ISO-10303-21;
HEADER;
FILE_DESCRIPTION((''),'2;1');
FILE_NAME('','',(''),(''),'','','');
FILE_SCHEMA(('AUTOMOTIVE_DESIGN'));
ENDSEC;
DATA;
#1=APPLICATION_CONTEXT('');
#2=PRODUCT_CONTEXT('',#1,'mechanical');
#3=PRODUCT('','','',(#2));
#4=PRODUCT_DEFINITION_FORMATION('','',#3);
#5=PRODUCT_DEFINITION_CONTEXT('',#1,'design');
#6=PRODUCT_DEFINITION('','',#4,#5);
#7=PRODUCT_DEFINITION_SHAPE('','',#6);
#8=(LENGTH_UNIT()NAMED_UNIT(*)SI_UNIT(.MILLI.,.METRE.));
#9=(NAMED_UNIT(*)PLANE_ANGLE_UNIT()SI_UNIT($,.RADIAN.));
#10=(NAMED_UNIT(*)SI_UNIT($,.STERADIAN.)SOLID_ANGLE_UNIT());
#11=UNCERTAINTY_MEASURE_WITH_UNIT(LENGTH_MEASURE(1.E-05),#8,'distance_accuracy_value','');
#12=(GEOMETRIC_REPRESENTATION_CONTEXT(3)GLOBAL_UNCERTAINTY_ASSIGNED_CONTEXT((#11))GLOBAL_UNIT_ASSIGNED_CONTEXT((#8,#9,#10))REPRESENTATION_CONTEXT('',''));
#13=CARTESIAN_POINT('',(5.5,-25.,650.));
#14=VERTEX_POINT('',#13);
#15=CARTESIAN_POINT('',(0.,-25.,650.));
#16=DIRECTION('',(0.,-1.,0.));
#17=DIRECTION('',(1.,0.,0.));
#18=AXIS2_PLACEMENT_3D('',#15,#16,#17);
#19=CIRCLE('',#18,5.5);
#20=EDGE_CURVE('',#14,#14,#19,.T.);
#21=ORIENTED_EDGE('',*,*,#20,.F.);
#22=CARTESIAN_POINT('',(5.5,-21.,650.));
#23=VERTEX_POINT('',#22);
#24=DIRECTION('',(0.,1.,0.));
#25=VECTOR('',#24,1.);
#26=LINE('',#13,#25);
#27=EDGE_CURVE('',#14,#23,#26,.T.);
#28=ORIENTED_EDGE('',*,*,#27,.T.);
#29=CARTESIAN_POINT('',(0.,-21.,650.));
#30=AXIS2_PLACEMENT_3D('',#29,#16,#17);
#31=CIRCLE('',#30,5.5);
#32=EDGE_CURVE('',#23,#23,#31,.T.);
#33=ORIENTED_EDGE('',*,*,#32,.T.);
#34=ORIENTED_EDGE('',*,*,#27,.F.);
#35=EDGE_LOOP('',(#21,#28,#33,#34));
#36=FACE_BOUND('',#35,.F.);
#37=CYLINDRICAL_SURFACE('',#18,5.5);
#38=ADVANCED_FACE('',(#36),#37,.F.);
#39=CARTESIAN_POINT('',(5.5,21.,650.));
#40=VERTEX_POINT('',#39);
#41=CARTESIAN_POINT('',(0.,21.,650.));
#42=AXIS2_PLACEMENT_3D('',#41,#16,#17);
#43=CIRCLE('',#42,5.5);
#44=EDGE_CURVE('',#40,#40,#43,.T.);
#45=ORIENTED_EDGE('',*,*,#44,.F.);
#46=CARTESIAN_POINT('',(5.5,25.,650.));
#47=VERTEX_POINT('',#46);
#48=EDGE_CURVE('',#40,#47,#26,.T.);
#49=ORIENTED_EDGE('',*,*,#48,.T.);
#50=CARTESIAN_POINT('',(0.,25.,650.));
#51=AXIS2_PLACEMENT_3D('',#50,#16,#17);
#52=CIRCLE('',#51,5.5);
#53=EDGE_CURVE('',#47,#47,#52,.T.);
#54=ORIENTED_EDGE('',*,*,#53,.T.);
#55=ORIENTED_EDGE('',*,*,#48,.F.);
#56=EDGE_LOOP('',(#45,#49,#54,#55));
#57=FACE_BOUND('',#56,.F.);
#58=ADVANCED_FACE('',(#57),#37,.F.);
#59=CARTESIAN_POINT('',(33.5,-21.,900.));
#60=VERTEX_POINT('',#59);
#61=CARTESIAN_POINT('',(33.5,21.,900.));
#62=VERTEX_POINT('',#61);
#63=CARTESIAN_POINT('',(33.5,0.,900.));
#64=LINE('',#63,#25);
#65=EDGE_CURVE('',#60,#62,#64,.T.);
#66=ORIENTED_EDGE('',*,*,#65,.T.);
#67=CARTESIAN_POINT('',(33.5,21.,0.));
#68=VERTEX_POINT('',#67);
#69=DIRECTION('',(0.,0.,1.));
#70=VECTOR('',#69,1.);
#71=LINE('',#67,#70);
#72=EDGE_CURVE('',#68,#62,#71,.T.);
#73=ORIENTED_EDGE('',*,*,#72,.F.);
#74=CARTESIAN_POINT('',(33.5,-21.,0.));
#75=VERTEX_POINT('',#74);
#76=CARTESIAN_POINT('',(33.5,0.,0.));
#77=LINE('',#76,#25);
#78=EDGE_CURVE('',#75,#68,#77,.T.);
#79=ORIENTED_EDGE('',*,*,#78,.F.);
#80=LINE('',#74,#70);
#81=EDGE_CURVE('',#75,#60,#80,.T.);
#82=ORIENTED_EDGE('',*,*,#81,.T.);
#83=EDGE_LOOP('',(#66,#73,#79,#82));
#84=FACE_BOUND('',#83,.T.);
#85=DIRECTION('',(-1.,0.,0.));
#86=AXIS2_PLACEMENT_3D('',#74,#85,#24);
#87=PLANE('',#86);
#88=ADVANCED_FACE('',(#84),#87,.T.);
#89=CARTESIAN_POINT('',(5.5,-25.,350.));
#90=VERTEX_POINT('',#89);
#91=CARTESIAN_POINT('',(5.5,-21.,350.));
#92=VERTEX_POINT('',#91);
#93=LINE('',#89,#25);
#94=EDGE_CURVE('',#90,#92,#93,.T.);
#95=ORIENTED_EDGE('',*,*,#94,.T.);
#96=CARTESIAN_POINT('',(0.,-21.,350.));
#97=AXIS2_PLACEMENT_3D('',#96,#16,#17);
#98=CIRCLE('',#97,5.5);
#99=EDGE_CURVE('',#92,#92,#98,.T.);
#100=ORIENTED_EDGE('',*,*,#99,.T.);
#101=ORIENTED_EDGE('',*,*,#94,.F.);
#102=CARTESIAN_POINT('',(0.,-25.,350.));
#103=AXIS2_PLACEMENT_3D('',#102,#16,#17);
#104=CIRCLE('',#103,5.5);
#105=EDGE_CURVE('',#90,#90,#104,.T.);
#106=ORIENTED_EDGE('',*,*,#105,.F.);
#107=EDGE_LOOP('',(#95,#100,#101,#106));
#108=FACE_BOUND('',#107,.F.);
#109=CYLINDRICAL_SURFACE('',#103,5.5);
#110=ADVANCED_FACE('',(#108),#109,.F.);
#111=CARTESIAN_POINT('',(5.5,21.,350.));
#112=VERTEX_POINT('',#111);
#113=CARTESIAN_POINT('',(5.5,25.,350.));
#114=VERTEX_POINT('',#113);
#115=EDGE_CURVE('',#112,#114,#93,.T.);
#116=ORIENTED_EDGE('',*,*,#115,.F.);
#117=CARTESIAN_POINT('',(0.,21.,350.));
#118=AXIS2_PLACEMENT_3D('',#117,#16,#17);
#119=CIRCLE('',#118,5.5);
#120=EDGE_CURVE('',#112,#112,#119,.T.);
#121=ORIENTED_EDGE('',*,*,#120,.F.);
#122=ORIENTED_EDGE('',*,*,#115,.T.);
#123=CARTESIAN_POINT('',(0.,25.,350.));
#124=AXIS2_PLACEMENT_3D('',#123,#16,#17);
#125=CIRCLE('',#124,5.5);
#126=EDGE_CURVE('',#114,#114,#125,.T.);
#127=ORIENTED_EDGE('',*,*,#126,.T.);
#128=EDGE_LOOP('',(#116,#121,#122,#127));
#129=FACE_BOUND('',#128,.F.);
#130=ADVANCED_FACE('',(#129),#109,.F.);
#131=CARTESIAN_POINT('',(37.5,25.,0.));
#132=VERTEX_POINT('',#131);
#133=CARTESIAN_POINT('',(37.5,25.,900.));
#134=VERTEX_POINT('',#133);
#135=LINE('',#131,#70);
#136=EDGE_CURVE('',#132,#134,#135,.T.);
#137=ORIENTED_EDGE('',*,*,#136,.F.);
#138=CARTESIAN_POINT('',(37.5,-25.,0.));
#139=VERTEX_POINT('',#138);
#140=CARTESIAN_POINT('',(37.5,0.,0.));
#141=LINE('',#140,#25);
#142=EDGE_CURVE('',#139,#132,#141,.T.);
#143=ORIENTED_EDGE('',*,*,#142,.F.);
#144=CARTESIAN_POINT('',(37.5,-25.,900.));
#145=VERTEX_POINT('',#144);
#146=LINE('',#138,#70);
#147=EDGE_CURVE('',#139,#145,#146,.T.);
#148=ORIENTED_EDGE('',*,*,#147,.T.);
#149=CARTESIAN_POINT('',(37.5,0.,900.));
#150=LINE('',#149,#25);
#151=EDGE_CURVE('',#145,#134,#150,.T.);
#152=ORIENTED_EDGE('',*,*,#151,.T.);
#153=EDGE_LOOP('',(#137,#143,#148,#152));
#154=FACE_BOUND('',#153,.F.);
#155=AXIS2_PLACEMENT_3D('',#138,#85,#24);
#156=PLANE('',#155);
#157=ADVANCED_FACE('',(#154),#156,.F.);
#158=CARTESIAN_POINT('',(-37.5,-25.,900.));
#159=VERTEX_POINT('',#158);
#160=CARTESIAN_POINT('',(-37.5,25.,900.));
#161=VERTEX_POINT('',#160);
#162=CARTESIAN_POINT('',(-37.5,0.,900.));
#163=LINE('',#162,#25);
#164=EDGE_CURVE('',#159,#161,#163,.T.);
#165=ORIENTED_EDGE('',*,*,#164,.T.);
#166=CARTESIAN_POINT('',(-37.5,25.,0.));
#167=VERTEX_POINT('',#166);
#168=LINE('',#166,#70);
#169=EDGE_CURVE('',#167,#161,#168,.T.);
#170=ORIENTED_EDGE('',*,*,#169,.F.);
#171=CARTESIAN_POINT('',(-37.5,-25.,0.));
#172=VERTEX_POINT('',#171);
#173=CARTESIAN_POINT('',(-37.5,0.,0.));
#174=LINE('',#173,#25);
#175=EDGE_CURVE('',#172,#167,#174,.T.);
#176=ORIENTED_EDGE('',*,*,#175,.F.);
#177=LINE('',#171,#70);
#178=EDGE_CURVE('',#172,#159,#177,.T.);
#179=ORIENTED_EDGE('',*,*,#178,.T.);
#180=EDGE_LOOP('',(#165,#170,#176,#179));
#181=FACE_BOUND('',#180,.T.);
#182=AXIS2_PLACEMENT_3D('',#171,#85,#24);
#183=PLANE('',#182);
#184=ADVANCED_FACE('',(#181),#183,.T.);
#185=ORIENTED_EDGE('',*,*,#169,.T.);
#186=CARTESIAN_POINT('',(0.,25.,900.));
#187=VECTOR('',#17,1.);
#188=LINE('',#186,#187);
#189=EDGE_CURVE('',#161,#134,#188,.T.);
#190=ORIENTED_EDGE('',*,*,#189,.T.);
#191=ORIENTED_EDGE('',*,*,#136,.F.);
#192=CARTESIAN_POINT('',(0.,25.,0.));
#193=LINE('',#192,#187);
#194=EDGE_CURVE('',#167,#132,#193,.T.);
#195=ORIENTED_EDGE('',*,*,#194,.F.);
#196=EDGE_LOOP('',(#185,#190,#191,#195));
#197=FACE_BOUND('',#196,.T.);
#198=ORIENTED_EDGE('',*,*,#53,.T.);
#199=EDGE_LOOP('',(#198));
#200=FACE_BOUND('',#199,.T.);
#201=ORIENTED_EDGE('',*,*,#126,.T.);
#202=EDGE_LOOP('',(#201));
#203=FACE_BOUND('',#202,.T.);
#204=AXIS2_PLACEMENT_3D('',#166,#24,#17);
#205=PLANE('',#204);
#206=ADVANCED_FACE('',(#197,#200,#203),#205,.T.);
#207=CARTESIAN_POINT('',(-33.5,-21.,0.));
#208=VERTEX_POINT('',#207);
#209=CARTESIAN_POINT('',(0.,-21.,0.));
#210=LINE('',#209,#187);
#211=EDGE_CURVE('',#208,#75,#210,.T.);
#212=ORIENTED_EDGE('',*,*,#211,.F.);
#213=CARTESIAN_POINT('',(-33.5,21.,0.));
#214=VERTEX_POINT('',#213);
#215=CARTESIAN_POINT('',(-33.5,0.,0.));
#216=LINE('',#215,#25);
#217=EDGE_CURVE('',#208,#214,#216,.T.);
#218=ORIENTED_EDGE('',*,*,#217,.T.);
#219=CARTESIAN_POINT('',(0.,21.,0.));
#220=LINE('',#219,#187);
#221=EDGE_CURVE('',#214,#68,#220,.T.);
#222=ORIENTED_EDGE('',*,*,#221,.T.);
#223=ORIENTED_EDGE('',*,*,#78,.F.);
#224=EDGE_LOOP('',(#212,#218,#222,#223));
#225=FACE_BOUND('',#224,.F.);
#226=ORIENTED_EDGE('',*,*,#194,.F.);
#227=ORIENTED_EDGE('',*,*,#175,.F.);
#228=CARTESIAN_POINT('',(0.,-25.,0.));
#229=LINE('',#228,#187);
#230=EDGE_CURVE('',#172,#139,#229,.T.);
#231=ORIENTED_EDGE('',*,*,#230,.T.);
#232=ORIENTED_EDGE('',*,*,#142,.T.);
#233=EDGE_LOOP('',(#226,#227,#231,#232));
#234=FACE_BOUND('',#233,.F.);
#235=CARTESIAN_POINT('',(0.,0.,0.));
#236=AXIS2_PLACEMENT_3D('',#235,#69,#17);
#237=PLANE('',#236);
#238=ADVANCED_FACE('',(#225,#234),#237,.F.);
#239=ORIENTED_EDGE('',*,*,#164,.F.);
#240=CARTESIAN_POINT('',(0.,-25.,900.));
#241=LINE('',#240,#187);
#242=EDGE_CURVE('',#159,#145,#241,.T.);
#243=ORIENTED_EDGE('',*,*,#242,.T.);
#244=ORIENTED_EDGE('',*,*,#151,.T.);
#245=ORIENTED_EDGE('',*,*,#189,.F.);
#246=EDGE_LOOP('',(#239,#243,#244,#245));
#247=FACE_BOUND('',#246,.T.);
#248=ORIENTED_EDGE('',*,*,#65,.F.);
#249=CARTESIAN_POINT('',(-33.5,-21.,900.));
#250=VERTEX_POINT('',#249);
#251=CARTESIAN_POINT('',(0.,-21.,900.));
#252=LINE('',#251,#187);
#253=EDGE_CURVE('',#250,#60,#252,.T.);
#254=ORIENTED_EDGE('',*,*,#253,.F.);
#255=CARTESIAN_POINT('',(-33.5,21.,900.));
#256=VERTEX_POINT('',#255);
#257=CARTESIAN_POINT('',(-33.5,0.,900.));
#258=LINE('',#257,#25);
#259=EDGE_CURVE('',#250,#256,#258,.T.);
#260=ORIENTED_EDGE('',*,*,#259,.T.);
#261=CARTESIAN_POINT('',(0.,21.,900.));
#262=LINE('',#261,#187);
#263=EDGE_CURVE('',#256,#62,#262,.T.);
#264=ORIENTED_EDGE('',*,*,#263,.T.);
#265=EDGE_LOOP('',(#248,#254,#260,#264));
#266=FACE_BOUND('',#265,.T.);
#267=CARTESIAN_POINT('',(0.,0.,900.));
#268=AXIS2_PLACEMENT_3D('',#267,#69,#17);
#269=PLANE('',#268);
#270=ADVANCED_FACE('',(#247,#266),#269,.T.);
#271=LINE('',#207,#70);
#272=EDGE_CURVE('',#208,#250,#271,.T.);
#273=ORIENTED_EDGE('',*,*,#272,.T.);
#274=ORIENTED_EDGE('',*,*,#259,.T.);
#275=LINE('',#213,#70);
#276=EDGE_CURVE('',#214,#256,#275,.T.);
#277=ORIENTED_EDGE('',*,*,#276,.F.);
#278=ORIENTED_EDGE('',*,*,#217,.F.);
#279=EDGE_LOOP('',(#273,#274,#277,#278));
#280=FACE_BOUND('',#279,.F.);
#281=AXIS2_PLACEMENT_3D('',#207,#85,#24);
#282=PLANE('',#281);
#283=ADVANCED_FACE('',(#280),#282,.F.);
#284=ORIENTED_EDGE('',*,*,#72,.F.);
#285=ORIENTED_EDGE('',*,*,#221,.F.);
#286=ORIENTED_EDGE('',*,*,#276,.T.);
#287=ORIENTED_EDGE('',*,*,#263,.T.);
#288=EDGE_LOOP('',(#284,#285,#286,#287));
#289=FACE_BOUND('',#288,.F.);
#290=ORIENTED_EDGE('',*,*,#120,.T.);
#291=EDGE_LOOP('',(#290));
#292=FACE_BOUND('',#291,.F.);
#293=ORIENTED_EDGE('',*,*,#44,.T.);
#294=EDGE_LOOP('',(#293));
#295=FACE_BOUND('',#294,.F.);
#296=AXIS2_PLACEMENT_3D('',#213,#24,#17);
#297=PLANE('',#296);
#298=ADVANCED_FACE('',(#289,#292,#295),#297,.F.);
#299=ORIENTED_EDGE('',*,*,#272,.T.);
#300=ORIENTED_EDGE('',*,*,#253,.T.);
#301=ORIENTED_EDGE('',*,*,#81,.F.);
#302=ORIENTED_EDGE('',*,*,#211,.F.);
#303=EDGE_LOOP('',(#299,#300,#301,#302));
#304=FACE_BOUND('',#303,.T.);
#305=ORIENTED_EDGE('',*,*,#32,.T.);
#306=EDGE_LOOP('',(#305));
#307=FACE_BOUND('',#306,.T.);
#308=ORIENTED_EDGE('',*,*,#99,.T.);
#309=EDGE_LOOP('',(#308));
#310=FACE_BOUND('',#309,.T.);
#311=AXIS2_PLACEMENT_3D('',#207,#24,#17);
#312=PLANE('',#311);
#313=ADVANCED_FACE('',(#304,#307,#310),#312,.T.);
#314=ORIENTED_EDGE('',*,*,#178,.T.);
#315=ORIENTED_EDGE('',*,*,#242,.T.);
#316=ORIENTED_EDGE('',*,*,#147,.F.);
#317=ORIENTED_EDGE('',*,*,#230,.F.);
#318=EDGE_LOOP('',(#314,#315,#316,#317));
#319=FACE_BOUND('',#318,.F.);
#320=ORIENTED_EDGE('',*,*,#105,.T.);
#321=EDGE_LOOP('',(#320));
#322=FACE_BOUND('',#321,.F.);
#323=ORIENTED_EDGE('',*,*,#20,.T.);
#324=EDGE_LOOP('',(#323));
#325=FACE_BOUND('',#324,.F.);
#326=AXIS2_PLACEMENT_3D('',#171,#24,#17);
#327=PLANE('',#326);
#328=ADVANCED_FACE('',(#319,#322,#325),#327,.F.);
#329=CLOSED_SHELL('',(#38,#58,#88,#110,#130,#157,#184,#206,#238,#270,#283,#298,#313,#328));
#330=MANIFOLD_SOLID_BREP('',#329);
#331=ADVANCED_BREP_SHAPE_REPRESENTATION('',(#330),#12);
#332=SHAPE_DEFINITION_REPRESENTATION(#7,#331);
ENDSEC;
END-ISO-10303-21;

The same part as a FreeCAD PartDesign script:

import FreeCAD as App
import Part
import Sketcher
from FreeCAD import Vector


def add_polygon(sketch, points):
    """Adds a closed chain of lines whose ends are joined by coincident constraints."""
    first, n = sketch.GeometryCount, len(points)
    for a, b in zip(points, points[1:] + points[:1]):
        sketch.addGeometry(Part.LineSegment(App.Vector(*a, 0), App.Vector(*b, 0)), False)
    for i in range(n):
        sketch.addConstraint(Sketcher.Constraint("Coincident", first + i, 2, first + (i + 1) % n, 1))

doc = App.newDocument("Part")
params = doc.addObject("Spreadsheet::Sheet", "Params")
for row, (alias, value) in enumerate([
    ("sketch1_width", "75 mm"),
    ("sketch1_width2", "67 mm"),
    ("sketch1_height", "50 mm"),
    ("sketch1_height2", "42 mm"),
    ("pad1_length", "900 mm"),
    ("sketch2_diameter", "11 mm"),
    ("pocket1_length", "50 mm"),
], start=1):
    params.set(f"A{row}", alias)
    params.set(f"B{row}", "=" + value)
    params.setAlias(f"B{row}", alias)

body = doc.addObject("PartDesign::Body", "Body")

# Sketch on XY plane
sketch1 = body.newObject("Sketcher::SketchObject", "Sketch")
sketch1.AttachmentSupport = (doc.getObject("XY_Plane"), [""])
sketch1.MapMode = "FlatFace"
add_polygon(sketch1, [(-38, 25), (-38, -25), (38, -25), (38, 25)])  # lines 0-3
add_polygon(sketch1, [(34, -21), (-34, -21), (-34, 21), (34, 21)])  # lines 4-7
sketch1.addConstraint([
    Sketcher.Constraint("Vertical", 0),
    Sketcher.Constraint("Horizontal", 1),
    Sketcher.Constraint("Vertical", 2),
    Sketcher.Constraint("Horizontal", 3),
    Sketcher.Constraint("Horizontal", 4),
    Sketcher.Constraint("Vertical", 5),
    Sketcher.Constraint("Horizontal", 6),
    Sketcher.Constraint("Vertical", 7),
    Sketcher.Constraint("Symmetric", 0, 2, 2, 2, -1, 1),
    Sketcher.Constraint("Symmetric", 4, 2, 6, 2, -1, 1),
    Sketcher.Constraint("DistanceX", 1, 1, 1, 2, 75.0),
    Sketcher.Constraint("DistanceX", 4, 2, 4, 1, 67.0),
    Sketcher.Constraint("DistanceY", 0, 2, 0, 1, 50.0),
    Sketcher.Constraint("DistanceY", 5, 1, 5, 2, 42.0),
])
sketch1.setExpression("Constraints[18]", "Params.sketch1_width")
sketch1.setExpression("Constraints[19]", "Params.sketch1_width2")
sketch1.setExpression("Constraints[20]", "Params.sketch1_height")
sketch1.setExpression("Constraints[21]", "Params.sketch1_height2")
pad1 = body.newObject("PartDesign::Pad", "Pad")
pad1.Profile = sketch1
pad1.setExpression("Length", "Params.pad1_length")

# Sketch on XZ plane
sketch2 = body.newObject("Sketcher::SketchObject", "Sketch001")
sketch2.AttachmentSupport = (doc.getObject("XZ_Plane"), [""])
sketch2.MapMode = "FlatFace"
sketch2.AttachmentOffset = App.Placement(Vector(0, 0, 25), App.Rotation())
sketch2.addGeometry([
    Part.Circle(Vector(0, 350, 0), Vector(0, 0, 1), 6),
    Part.Circle(Vector(0, 650, 0), Vector(0, 0, 1), 6),
], False)
sketch2.addConstraint([
    Sketcher.Constraint("Equal", 0, 1),
    Sketcher.Constraint("PointOnObject", 0, 3, -2),
    Sketcher.Constraint("PointOnObject", 1, 3, -2),
    Sketcher.Constraint("Diameter", 0, 11.0),
    Sketcher.Constraint("DistanceY", -1, 1, 0, 3, 350.0),
    Sketcher.Constraint("DistanceY", -1, 1, 1, 3, 650.0),
])
sketch2.setExpression("Constraints[3]", "Params.sketch2_diameter")
pocket1 = body.newObject("PartDesign::Pocket", "Pocket")
pocket1.Profile = sketch2
pocket1.setExpression("Length", "Params.pocket1_length")

doc.recompute()
